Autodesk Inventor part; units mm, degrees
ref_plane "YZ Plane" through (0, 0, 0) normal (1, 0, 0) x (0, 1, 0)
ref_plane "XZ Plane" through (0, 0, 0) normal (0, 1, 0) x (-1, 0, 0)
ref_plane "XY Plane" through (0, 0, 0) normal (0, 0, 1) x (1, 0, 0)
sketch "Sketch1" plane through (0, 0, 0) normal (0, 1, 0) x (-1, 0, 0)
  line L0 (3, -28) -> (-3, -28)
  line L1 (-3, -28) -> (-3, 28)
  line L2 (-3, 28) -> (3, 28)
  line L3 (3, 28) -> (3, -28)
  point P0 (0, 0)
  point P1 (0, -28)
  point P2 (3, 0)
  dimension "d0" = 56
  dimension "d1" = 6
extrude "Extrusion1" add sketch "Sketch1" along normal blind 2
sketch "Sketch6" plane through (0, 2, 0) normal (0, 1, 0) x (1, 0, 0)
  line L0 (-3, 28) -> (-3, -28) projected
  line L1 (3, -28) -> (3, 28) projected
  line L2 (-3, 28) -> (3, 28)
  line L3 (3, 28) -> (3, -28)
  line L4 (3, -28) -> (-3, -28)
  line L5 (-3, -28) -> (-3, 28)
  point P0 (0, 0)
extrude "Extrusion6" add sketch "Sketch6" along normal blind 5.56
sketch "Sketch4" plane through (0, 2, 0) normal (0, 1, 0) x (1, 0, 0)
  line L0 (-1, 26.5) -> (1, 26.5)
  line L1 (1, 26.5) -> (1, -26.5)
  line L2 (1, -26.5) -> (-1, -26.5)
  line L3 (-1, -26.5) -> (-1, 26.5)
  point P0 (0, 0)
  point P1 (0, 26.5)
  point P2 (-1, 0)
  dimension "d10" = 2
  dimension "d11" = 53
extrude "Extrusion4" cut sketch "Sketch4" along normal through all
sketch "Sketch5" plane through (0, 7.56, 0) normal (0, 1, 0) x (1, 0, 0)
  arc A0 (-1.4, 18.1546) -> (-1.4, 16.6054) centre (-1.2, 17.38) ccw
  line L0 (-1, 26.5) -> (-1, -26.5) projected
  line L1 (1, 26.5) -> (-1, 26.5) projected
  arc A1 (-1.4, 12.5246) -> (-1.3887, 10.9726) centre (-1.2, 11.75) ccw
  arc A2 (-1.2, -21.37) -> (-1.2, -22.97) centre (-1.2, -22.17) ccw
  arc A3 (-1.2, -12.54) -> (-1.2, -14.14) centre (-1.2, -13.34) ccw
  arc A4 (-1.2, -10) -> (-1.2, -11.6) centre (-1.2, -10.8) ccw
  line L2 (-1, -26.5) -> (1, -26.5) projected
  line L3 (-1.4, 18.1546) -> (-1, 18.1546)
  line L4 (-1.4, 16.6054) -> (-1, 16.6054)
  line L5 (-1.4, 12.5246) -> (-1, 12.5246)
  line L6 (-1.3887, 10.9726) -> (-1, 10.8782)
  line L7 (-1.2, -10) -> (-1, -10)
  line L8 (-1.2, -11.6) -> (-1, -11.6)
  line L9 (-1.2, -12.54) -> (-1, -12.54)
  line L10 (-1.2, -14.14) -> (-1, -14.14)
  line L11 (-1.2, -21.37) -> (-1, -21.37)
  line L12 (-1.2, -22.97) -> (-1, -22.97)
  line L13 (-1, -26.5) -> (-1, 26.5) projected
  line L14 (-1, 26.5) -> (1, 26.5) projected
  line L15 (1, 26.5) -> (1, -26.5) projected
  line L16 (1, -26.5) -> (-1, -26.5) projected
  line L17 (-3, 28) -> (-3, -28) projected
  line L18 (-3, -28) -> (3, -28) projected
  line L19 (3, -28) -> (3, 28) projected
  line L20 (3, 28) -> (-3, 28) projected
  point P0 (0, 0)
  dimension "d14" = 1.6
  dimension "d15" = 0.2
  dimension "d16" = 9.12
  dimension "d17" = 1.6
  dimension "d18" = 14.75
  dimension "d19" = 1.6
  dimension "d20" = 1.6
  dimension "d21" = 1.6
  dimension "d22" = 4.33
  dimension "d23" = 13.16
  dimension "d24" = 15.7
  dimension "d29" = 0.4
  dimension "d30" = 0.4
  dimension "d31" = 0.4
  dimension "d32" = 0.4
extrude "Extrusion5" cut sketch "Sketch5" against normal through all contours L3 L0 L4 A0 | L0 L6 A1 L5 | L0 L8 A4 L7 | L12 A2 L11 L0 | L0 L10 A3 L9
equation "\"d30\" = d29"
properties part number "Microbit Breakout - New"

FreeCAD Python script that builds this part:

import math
import FreeCAD as App
import Part
import Sketcher
from FreeCAD import Vector

doc = App.newDocument("Part")
body = doc.addObject("PartDesign::Body", "Body")

sketch1 = doc.addObject("Sketcher::SketchObject", "Sketch")
body.addObject(sketch1)
sketch1.AttachmentSupport = (doc.XZ_Plane, [""])
sketch1.MapMode = "FlatFace"
sketch1.addGeometry([
    Part.LineSegment(Vector(3, -28, 0), Vector(-3, -28, 0)),
    Part.LineSegment(Vector(-3, -28, 0), Vector(-3, 28, 0)),
    Part.LineSegment(Vector(-3, 28, 0), Vector(3, 28, 0)),
    Part.LineSegment(Vector(3, 28, 0), Vector(3, -28, 0)),
], False)
sketch1.addConstraint([
    Sketcher.Constraint("Coincident", 0, 2, 1, 1),
    Sketcher.Constraint("Coincident", 1, 2, 2, 1),
    Sketcher.Constraint("Coincident", 2, 2, 3, 1),
    Sketcher.Constraint("Coincident", 3, 2, 0, 1),
    Sketcher.Constraint("Horizontal", 0),
    Sketcher.Constraint("Vertical", 1),
    Sketcher.Constraint("Horizontal", 2),
    Sketcher.Constraint("Vertical", 3),
    Sketcher.Constraint("Symmetric", 0, 2, 2, 2, -1, 1),
    Sketcher.Constraint("DistanceX", 0, 2, 0, 1, 6.0),
    Sketcher.Constraint("DistanceY", 1, 1, 1, 2, 56.0),
])
pad1 = doc.addObject("PartDesign::Pad", "Pad")
body.addObject(pad1)
pad1.Profile = sketch1
pad1.Length = 2
pad1.Reversed = True

sketch2 = doc.addObject("Sketcher::SketchObject", "Sketch001")
body.addObject(sketch2)
sketch2.AttachmentSupport = (doc.XZ_Plane, [""])
sketch2.MapMode = "FlatFace"
sketch2.AttachmentOffset = App.Placement(Vector(0, 0, -2), App.Rotation())
sketch2.addGeometry([
    Part.LineSegment(Vector(3, -28, 0), Vector(-3, -28, 0)),
    Part.LineSegment(Vector(-3, -28, 0), Vector(-3, 28, 0)),
    Part.LineSegment(Vector(-3, 28, 0), Vector(3, 28, 0)),
    Part.LineSegment(Vector(3, 28, 0), Vector(3, -28, 0)),
], False)
sketch2.addConstraint([
    Sketcher.Constraint("Coincident", 0, 2, 1, 1),
    Sketcher.Constraint("Coincident", 1, 2, 2, 1),
    Sketcher.Constraint("Coincident", 2, 2, 3, 1),
    Sketcher.Constraint("Coincident", 3, 2, 0, 1),
    Sketcher.Constraint("Horizontal", 0),
    Sketcher.Constraint("Vertical", 1),
    Sketcher.Constraint("Horizontal", 2),
    Sketcher.Constraint("Vertical", 3),
    Sketcher.Constraint("Symmetric", 0, 2, 2, 2, -1, 1),
    Sketcher.Constraint("DistanceX", 0, 2, 0, 1, 6.0),
    Sketcher.Constraint("DistanceY", 1, 1, 1, 2, 56.0),
])
pad2 = doc.addObject("PartDesign::Pad", "Pad001")
body.addObject(pad2)
pad2.Profile = sketch2
pad2.Length = 5.56
pad2.Reversed = True

sketch3 = doc.addObject("Sketcher::SketchObject", "Sketch002")
body.addObject(sketch3)
sketch3.AttachmentSupport = (doc.XZ_Plane, [""])
sketch3.MapMode = "FlatFace"
sketch3.AttachmentOffset = App.Placement(Vector(0, 0, -2), App.Rotation())
sketch3.addGeometry([
    Part.LineSegment(Vector(1, -26.5, 0), Vector(-1, -26.5, 0)),
    Part.LineSegment(Vector(-1, -26.5, 0), Vector(-1, 26.5, 0)),
    Part.LineSegment(Vector(-1, 26.5, 0), Vector(1, 26.5, 0)),
    Part.LineSegment(Vector(1, 26.5, 0), Vector(1, -26.5, 0)),
], False)
sketch3.addConstraint([
    Sketcher.Constraint("Coincident", 0, 2, 1, 1),
    Sketcher.Constraint("Coincident", 1, 2, 2, 1),
    Sketcher.Constraint("Coincident", 2, 2, 3, 1),
    Sketcher.Constraint("Coincident", 3, 2, 0, 1),
    Sketcher.Constraint("Horizontal", 0),
    Sketcher.Constraint("Vertical", 1),
    Sketcher.Constraint("Horizontal", 2),
    Sketcher.Constraint("Vertical", 3),
    Sketcher.Constraint("Symmetric", 0, 2, 2, 2, -1, 1),
    Sketcher.Constraint("DistanceX", 0, 2, 0, 1, 2.0),
    Sketcher.Constraint("DistanceY", 1, 1, 1, 2, 53.0),
])
pocket1 = doc.addObject("PartDesign::Pocket", "Pocket")
body.addObject(pocket1)
pocket1.Profile = sketch3
pocket1.Type = "ThroughAll"

sketch4 = doc.addObject("Sketcher::SketchObject", "Sketch003")
body.addObject(sketch4)
sketch4.AttachmentSupport = (doc.XZ_Plane, [""])
sketch4.MapMode = "FlatFace"
sketch4.AttachmentOffset = App.Placement(Vector(0, 0, -7.56), App.Rotation())
sketch4.addGeometry([
    Part.LineSegment(Vector(-1, -18.1546, 0), Vector(-1.4, -18.1546, 0)),
    Part.ArcOfCircle(Part.Circle(Vector(-1.2, -17.38, 0), Vector(0, 0, 1), 0.800003), math.radians(104.477453), math.radians(255.522547)),
    Part.LineSegment(Vector(-1.4, -16.6054, 0), Vector(-1, -16.6054, 0)),
    Part.LineSegment(Vector(-1, -16.6054, 0), Vector(-1, -18.1546, 0)),
    Part.LineSegment(Vector(-1, -10.8782, 0), Vector(-1, -12.5246, 0)),
    Part.LineSegment(Vector(-1, -12.5246, 0), Vector(-1.4, -12.5246, 0)),
    Part.ArcOfCircle(Part.Circle(Vector(-1.2, -11.75, 0), Vector(0, 0, 1), 0.800003), math.radians(103.643658), math.radians(255.522547)),
    Part.LineSegment(Vector(-1.3887, -10.9726, 0), Vector(-1, -10.8782, 0)),
    Part.LineSegment(Vector(-1, 11.6, 0), Vector(-1, 10, 0)),
    Part.LineSegment(Vector(-1, 10, 0), Vector(-1.2, 10, 0)),
    Part.ArcOfCircle(Part.Circle(Vector(-1.2, 10.8, 0), Vector(0, 0, 1), 0.8), math.radians(90), math.radians(270)),
    Part.LineSegment(Vector(-1.2, 11.6, 0), Vector(-1, 11.6, 0)),
    Part.LineSegment(Vector(-1.2, 22.97, 0), Vector(-1, 22.97, 0)),
    Part.LineSegment(Vector(-1, 22.97, 0), Vector(-1, 21.37, 0)),
    Part.LineSegment(Vector(-1, 21.37, 0), Vector(-1.2, 21.37, 0)),
    Part.ArcOfCircle(Part.Circle(Vector(-1.2, 22.17, 0), Vector(0, 0, 1), 0.8), math.radians(90), math.radians(270)),
    Part.LineSegment(Vector(-1, 14.14, 0), Vector(-1, 12.54, 0)),
    Part.LineSegment(Vector(-1, 12.54, 0), Vector(-1.2, 12.54, 0)),
    Part.ArcOfCircle(Part.Circle(Vector(-1.2, 13.34, 0), Vector(0, 0, 1), 0.8), math.radians(90), math.radians(270)),
    Part.LineSegment(Vector(-1.2, 14.14, 0), Vector(-1, 14.14, 0)),
], False)
sketch4.addConstraint([
    Sketcher.Constraint("Coincident", 0, 2, 1, 2),
    Sketcher.Constraint("Coincident", 1, 1, 2, 1),
    Sketcher.Constraint("Coincident", 2, 2, 3, 1),
    Sketcher.Constraint("Coincident", 3, 2, 0, 1),
    Sketcher.Constraint("Coincident", 4, 2, 5, 1),
    Sketcher.Constraint("Coincident", 5, 2, 6, 2),
    Sketcher.Constraint("Tangent", 6, 1, 7, 1),
    Sketcher.Constraint("Coincident", 7, 2, 4, 1),
    Sketcher.Constraint("Coincident", 8, 2, 9, 1),
    Sketcher.Constraint("Tangent", 9, 2, 10, 2),
    Sketcher.Constraint("Tangent", 10, 1, 11, 1),
    Sketcher.Constraint("Coincident", 11, 2, 8, 1),
    Sketcher.Constraint("Coincident", 12, 2, 13, 1),
    Sketcher.Constraint("Coincident", 13, 2, 14, 1),
    Sketcher.Constraint("Tangent", 14, 2, 15, 2),
    Sketcher.Constraint("Tangent", 15, 1, 12, 1),
    Sketcher.Constraint("Coincident", 16, 2, 17, 1),
    Sketcher.Constraint("Tangent", 17, 2, 18, 2),
    Sketcher.Constraint("Tangent", 18, 1, 19, 1),
    Sketcher.Constraint("Coincident", 19, 2, 16, 1),
    Sketcher.Constraint("Horizontal", 0),
    Sketcher.Constraint("Horizontal", 2),
    Sketcher.Constraint("Vertical", 3),
    Sketcher.Constraint("Vertical", 4),
    Sketcher.Constraint("Horizontal", 5),
    Sketcher.Constraint("Vertical", 8),
    Sketcher.Constraint("Horizontal", 9),
    Sketcher.Constraint("Horizontal", 11),
    Sketcher.Constraint("Horizontal", 12),
    Sketcher.Constraint("Vertical", 13),
    Sketcher.Constraint("Horizontal", 14),
    Sketcher.Constraint("Vertical", 16),
    Sketcher.Constraint("Horizontal", 17),
    Sketcher.Constraint("Horizontal", 19),
    Sketcher.Constraint("Equal", 1, 6),
    Sketcher.Constraint("Equal", 6, 10),
    Sketcher.Constraint("Equal", 10, 15),
    Sketcher.Constraint("Equal", 15, 18),
    Sketcher.Constraint("Vertical", 1, 3, 6, 3),
    Sketcher.Constraint("Vertical", 6, 3, 10, 3),
    Sketcher.Constraint("Vertical", 10, 3, 15, 3),
    Sketcher.Constraint("Vertical", 15, 3, 18, 3),
    Sketcher.Constraint("Vertical", 0, 2, 1, 1),
    Sketcher.Constraint("Vertical", 3, 2, 4, 2),
    Sketcher.Constraint("Vertical", 1, 1, 5, 2),
    Sketcher.Constraint("Vertical", 7, 2, 8, 2),
    Sketcher.Constraint("Vertical", 11, 2, 12, 2),
    Sketcher.Constraint("Vertical", 13, 2, 16, 2),
    Sketcher.Constraint("Radius", 1, 0.8),
    Sketcher.Constraint("DistanceX", 0, 2, 0, 1, 0.4),
    Sketcher.Constraint("DistanceX", 9, 2, 9, 1, 0.2),
    Sketcher.Constraint("Distance", 7, 0.4),
    Sketcher.Constraint("DistanceX", 2, 2, -1, 1, 1.0),
    Sketcher.Constraint("DistanceY", -1, 1, 8, 2, 10.0),
    Sketcher.Constraint("DistanceY", 1, 3, -1, 1, 17.38),
    Sketcher.Constraint("DistanceY", 6, 3, -1, 1, 11.75),
    Sketcher.Constraint("DistanceY", -1, 1, 15, 3, 22.17),
    Sketcher.Constraint("DistanceY", -1, 1, 18, 3, 13.34),
])
pocket2 = doc.addObject("PartDesign::Pocket", "Pocket001")
body.addObject(pocket2)
pocket2.Profile = sketch4
pocket2.Type = "ThroughAll"
pocket2.Reversed = True

doc.recompute()
